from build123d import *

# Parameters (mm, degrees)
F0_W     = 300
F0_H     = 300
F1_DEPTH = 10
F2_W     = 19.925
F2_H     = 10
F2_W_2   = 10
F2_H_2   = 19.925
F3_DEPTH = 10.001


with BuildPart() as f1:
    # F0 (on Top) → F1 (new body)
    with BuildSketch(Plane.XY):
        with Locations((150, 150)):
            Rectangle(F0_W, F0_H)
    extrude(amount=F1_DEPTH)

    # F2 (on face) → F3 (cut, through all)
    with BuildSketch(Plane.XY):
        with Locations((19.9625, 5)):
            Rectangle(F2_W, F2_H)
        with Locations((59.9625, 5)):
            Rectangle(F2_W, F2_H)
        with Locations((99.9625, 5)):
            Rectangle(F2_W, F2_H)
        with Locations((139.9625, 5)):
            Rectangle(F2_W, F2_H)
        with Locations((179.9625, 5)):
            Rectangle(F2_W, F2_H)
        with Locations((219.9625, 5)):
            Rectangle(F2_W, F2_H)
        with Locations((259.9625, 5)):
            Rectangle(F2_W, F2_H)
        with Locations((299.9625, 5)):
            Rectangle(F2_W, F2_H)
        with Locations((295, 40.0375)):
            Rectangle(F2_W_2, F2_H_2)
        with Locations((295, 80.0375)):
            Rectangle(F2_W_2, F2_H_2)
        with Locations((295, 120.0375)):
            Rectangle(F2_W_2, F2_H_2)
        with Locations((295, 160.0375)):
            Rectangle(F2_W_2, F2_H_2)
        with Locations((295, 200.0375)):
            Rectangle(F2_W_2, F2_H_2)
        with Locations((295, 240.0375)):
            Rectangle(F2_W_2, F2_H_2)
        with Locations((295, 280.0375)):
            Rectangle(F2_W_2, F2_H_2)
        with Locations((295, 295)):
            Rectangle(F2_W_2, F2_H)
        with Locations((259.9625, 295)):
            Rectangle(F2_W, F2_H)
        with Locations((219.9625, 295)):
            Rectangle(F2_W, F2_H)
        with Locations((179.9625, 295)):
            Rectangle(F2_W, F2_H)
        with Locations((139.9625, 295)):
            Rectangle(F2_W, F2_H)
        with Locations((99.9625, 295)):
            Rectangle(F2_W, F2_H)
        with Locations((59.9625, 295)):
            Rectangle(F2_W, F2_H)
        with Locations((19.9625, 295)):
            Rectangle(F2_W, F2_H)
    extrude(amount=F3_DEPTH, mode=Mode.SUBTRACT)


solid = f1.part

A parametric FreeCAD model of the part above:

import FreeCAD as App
import Part
import Sketcher

V = App.Vector
Q = App.Units.Quantity


def add_polygon(sketch, points):
    """Adds a closed chain of lines whose ends are joined by coincident constraints."""
    first, n = sketch.GeometryCount, len(points)
    for a, b in zip(points, points[1:] + points[:1]):
        sketch.addGeometry(Part.LineSegment(App.Vector(*a, 0), App.Vector(*b, 0)), False)
    for i in range(n):
        sketch.addConstraint(Sketcher.Constraint("Coincident", first + i, 2, first + (i + 1) % n, 1))

doc = App.newDocument("Part")
body = doc.addObject("PartDesign::Body", "Body")

sketch1 = body.newObject("Sketcher::SketchObject", "Sketch")
sketch1.AttachmentSupport = (doc.getObject("XY_Plane"), [""])
sketch1.MapMode = "FlatFace"
add_polygon(sketch1, [(0, 300), (0, 0), (300, 0), (300, 300)])
sketch1.addConstraint([
    Sketcher.Constraint("Vertical", 0),
    Sketcher.Constraint("Horizontal", 1),
    Sketcher.Constraint("Vertical", 2),
    Sketcher.Constraint("Horizontal", 3),
    Sketcher.Constraint("Coincident", 0, 2, -1, 1),
    Sketcher.Constraint("Equal", 3, 0),
    Sketcher.Constraint("DistanceX", 1, 1, 1, 2, Q("300 mm")),
])
pad1 = body.newObject("PartDesign::Pad", "Pad")
pad1.Profile = sketch1
pad1.Length = 10

sketch2 = body.newObject("Sketcher::SketchObject", "Sketch001")
sketch2.AttachmentSupport = (doc.getObject("XY_Plane"), [""])
sketch2.MapMode = "FlatFace"
add_polygon(sketch2, [(10, 10), (10, 0), (30, 0), (30, 10)])
add_polygon(sketch2, [(50, 10), (50, 0), (70, 0), (70, 10)])
add_polygon(sketch2, [(90, 10), (90, 0), (110, 0), (110, 10)])
add_polygon(sketch2, [(130, 10), (130, 0), (150, 0), (150, 10)])
add_polygon(sketch2, [(170, 10), (170, 0), (190, 0), (190, 10)])
add_polygon(sketch2, [(210, 10), (210, 0), (230, 0), (230, 10)])
add_polygon(sketch2, [(250, 10), (250, 0), (270, 0), (270, 10)])
add_polygon(sketch2, [(290, 10), (290, 0), (310, 0), (310, 10)])
add_polygon(sketch2, [(290, 50), (290, 30), (300, 30), (300, 50)])
add_polygon(sketch2, [(290, 90), (290, 70), (300, 70), (300, 90)])
add_polygon(sketch2, [(290, 130), (290, 110), (300, 110), (300, 130)])
add_polygon(sketch2, [(290, 170), (290, 150), (300, 150), (300, 170)])
add_polygon(sketch2, [(290, 210), (290, 190), (300, 190), (300, 210)])
add_polygon(sketch2, [(290, 250), (290, 230), (300, 230), (300, 250)])
add_polygon(sketch2, [(290, 270), (300, 270), (300, 300), (290, 300)])
add_polygon(sketch2, [(250, 300), (250, 290), (270, 290), (270, 300)])
add_polygon(sketch2, [(210, 300), (210, 290), (230, 290), (230, 300)])
add_polygon(sketch2, [(170, 300), (170, 290), (190, 290), (190, 300)])
add_polygon(sketch2, [(130, 300), (130, 290), (150, 290), (150, 300)])
add_polygon(sketch2, [(90, 300), (90, 290), (110, 290), (110, 300)])
add_polygon(sketch2, [(50, 300), (50, 290), (70, 290), (70, 300)])
add_polygon(sketch2, [(10, 300), (10, 290), (30, 290), (30, 300)])
sketch2.addConstraint([
    Sketcher.Constraint("Vertical", 0),
    Sketcher.Constraint("Horizontal", 1),
    Sketcher.Constraint("Vertical", 2),
    Sketcher.Constraint("Horizontal", 3),
    Sketcher.Constraint("Vertical", 4),
    Sketcher.Constraint("Horizontal", 5),
    Sketcher.Constraint("Vertical", 6),
    Sketcher.Constraint("Horizontal", 7),
    Sketcher.Constraint("Vertical", 8),
    Sketcher.Constraint("Horizontal", 9),
    Sketcher.Constraint("Vertical", 10),
    Sketcher.Constraint("Horizontal", 11),
    Sketcher.Constraint("Vertical", 12),
    Sketcher.Constraint("Horizontal", 13),
    Sketcher.Constraint("Vertical", 14),
    Sketcher.Constraint("Horizontal", 15),
    Sketcher.Constraint("Vertical", 16),
    Sketcher.Constraint("Horizontal", 17),
    Sketcher.Constraint("Vertical", 18),
    Sketcher.Constraint("Horizontal", 19),
    Sketcher.Constraint("Vertical", 20),
    Sketcher.Constraint("Horizontal", 21),
    Sketcher.Constraint("Vertical", 22),
    Sketcher.Constraint("Horizontal", 23),
    Sketcher.Constraint("Vertical", 24),
    Sketcher.Constraint("Horizontal", 25),
    Sketcher.Constraint("Vertical", 26),
    Sketcher.Constraint("Horizontal", 27),
    Sketcher.Constraint("Vertical", 28),
    Sketcher.Constraint("Horizontal", 29),
    Sketcher.Constraint("Vertical", 30),
    Sketcher.Constraint("Horizontal", 31),
    Sketcher.Constraint("Vertical", 32),
    Sketcher.Constraint("Horizontal", 33),
    Sketcher.Constraint("Vertical", 34),
    Sketcher.Constraint("Horizontal", 35),
    Sketcher.Constraint("Vertical", 36),
    Sketcher.Constraint("Horizontal", 37),
    Sketcher.Constraint("Vertical", 38),
    Sketcher.Constraint("Horizontal", 39),
    Sketcher.Constraint("Vertical", 40),
    Sketcher.Constraint("Horizontal", 41),
    Sketcher.Constraint("Vertical", 42),
    Sketcher.Constraint("Horizontal", 43),
    Sketcher.Constraint("Vertical", 44),
    Sketcher.Constraint("Horizontal", 45),
    Sketcher.Constraint("Vertical", 46),
    Sketcher.Constraint("Horizontal", 47),
    Sketcher.Constraint("Vertical", 48),
    Sketcher.Constraint("Horizontal", 49),
    Sketcher.Constraint("Vertical", 50),
    Sketcher.Constraint("Horizontal", 51),
    Sketcher.Constraint("Vertical", 52),
    Sketcher.Constraint("Horizontal", 53),
    Sketcher.Constraint("Vertical", 54),
    Sketcher.Constraint("Horizontal", 55),
    Sketcher.Constraint("Horizontal", 56),
    Sketcher.Constraint("Vertical", 57),
    Sketcher.Constraint("Horizontal", 58),
    Sketcher.Constraint("Vertical", 59),
    Sketcher.Constraint("Vertical", 60),
    Sketcher.Constraint("Horizontal", 61),
    Sketcher.Constraint("Vertical", 62),
    Sketcher.Constraint("Horizontal", 63),
    Sketcher.Constraint("Vertical", 64),
    Sketcher.Constraint("Horizontal", 65),
    Sketcher.Constraint("Vertical", 66),
    Sketcher.Constraint("Horizontal", 67),
    Sketcher.Constraint("Vertical", 68),
    Sketcher.Constraint("Horizontal", 69),
    Sketcher.Constraint("Vertical", 70),
    Sketcher.Constraint("Horizontal", 71),
    Sketcher.Constraint("Vertical", 72),
    Sketcher.Constraint("Horizontal", 73),
    Sketcher.Constraint("Vertical", 74),
    Sketcher.Constraint("Horizontal", 75),
    Sketcher.Constraint("Vertical", 76),
    Sketcher.Constraint("Horizontal", 77),
    Sketcher.Constraint("Vertical", 78),
    Sketcher.Constraint("Horizontal", 79),
    Sketcher.Constraint("Vertical", 80),
    Sketcher.Constraint("Horizontal", 81),
    Sketcher.Constraint("Vertical", 82),
    Sketcher.Constraint("Horizontal", 83),
    Sketcher.Constraint("Vertical", 84),
    Sketcher.Constraint("Horizontal", 85),
    Sketcher.Constraint("Vertical", 86),
    Sketcher.Constraint("Horizontal", 87),
    Sketcher.Constraint("PointOnObject", 0, 2, -1),
    Sketcher.Constraint("PointOnObject", 4, 2, -1),
    Sketcher.Constraint("PointOnObject", 8, 2, -1),
    Sketcher.Constraint("PointOnObject", 12, 2, -1),
    Sketcher.Constraint("PointOnObject", 16, 2, -1),
    Sketcher.Constraint("PointOnObject", 20, 2, -1),
    Sketcher.Constraint("PointOnObject", 24, 2, -1),
    Sketcher.Constraint("PointOnObject", 28, 2, -1),
    Sketcher.Constraint("Horizontal", 3, 2, 6, 2),
    Sketcher.Constraint("Horizontal", 7, 2, 10, 2),
    Sketcher.Constraint("Horizontal", 11, 2, 14, 2),
    Sketcher.Constraint("Horizontal", 15, 2, 18, 2),
    Sketcher.Constraint("Horizontal", 19, 2, 22, 2),
    Sketcher.Constraint("Horizontal", 23, 2, 26, 2),
    Sketcher.Constraint("Horizontal", 27, 2, 30, 2),
    Sketcher.Constraint("Horizontal", 58, 2, 62, 2),
    Sketcher.Constraint("Horizontal", 61, 2, 64, 2),
    Sketcher.Constraint("Horizontal", 63, 2, 66, 2),
    Sketcher.Constraint("Horizontal", 65, 2, 68, 2),
    Sketcher.Constraint("Horizontal", 67, 2, 70, 2),
    Sketcher.Constraint("Horizontal", 69, 2, 72, 2),
    Sketcher.Constraint("Horizontal", 71, 2, 74, 2),
    Sketcher.Constraint("Horizontal", 73, 2, 76, 2),
    Sketcher.Constraint("Horizontal", 75, 2, 78, 2),
    Sketcher.Constraint("Horizontal", 77, 2, 80, 2),
    Sketcher.Constraint("Horizontal", 79, 2, 82, 2),
    Sketcher.Constraint("Horizontal", 81, 2, 84, 2),
    Sketcher.Constraint("Horizontal", 83, 2, 86, 2),
    Sketcher.Constraint("Vertical", 31, 2, 32, 2),
    Sketcher.Constraint("Vertical", 35, 2, 36, 2),
    Sketcher.Constraint("Vertical", 34, 2, 37, 2),
    Sketcher.Constraint("Vertical", 39, 2, 40, 2),
    Sketcher.Constraint("Vertical", 38, 2, 41, 2),
    Sketcher.Constraint("Vertical", 43, 2, 44, 2),
    Sketcher.Constraint("Vertical", 42, 2, 45, 2),
    Sketcher.Constraint("Vertical", 47, 2, 48, 2),
    Sketcher.Constraint("Vertical", 46, 2, 49, 2),
    Sketcher.Constraint("Vertical", 51, 2, 52, 2),
    Sketcher.Constraint("Vertical", 50, 2, 53, 2),
    Sketcher.Constraint("Vertical", 54, 2, 56, 2),
    Sketcher.Constraint("Vertical", 55, 2, 58, 2),
    Sketcher.Constraint("Vertical", 27, 2, 60, 2),
    Sketcher.Constraint("Vertical", 26, 2, 61, 2),
    Sketcher.Constraint("Vertical", 23, 2, 64, 2),
    Sketcher.Constraint("Vertical", 22, 2, 65, 2),
    Sketcher.Constraint("Vertical", 19, 2, 68, 2),
    Sketcher.Constraint("Vertical", 18, 2, 69, 2),
    Sketcher.Constraint("Vertical", 15, 2, 72, 2),
    Sketcher.Constraint("Vertical", 14, 2, 73, 2),
    Sketcher.Constraint("Vertical", 11, 2, 76, 2),
    Sketcher.Constraint("Vertical", 10, 2, 77, 2),
    Sketcher.Constraint("Vertical", 7, 2, 80, 2),
    Sketcher.Constraint("Vertical", 6, 2, 81, 2),
    Sketcher.Constraint("Vertical", 3, 2, 84, 2),
    Sketcher.Constraint("Vertical", 2, 2, 85, 2),
    Sketcher.Constraint("Equal", 3, 5),
    Sketcher.Constraint("Equal", 7, 9),
    Sketcher.Constraint("Equal", 11, 13),
    Sketcher.Constraint("Equal", 15, 17),
    Sketcher.Constraint("Equal", 19, 21),
    Sketcher.Constraint("Equal", 23, 25),
    Sketcher.Constraint("Equal", 27, 29),
    Sketcher.Constraint("Equal", 58, 0),
    Sketcher.Constraint("Equal", 87, 32),
    Sketcher.Constraint("Equal", 34, 36),
    Sketcher.Constraint("Equal", 38, 40),
    Sketcher.Constraint("Equal", 42, 44),
    Sketcher.Constraint("Equal", 46, 48),
    Sketcher.Constraint("Equal", 50, 52),
    Sketcher.Constraint("Equal", 30, 60),
    Sketcher.Constraint("DistanceX", 33, 1, 33, 2, Q("10 mm")),
    Sketcher.Constraint("DistanceX", -1, 1, 0, 2, Q("10 mm")),
    Sketcher.Constraint("DistanceX", -1, 1, 4, 2, Q("50 mm")),
    Sketcher.Constraint("DistanceX", -1, 1, 8, 2, Q("90 mm")),
    Sketcher.Constraint("DistanceX", -1, 1, 12, 2, Q("130 mm")),
    Sketcher.Constraint("DistanceX", -1, 1, 16, 2, Q("170 mm")),
    Sketcher.Constraint("DistanceX", -1, 1, 20, 2, Q("210 mm")),
    Sketcher.Constraint("DistanceX", -1, 1, 24, 2, Q("250 mm")),
    Sketcher.Constraint("DistanceX", -1, 1, 28, 2, Q("290 mm")),
    Sketcher.Constraint("DistanceY", -1, 1, 34, 2, Q("50 mm")),
    Sketcher.Constraint("DistanceY", -1, 1, 38, 2, Q("90 mm")),
    Sketcher.Constraint("DistanceY", -1, 1, 42, 2, Q("130 mm")),
    Sketcher.Constraint("DistanceY", -1, 1, 46, 2, Q("170 mm")),
    Sketcher.Constraint("DistanceY", -1, 1, 50, 2, Q("210 mm")),
    Sketcher.Constraint("DistanceY", -1, 1, 54, 2, Q("250 mm")),
    Sketcher.Constraint("DistanceY", -1, 1, 57, 2, Q("300 mm")),
    Sketcher.Constraint("DistanceX", 1, 1, 1, 2, Q("19.925 mm")),
    Sketcher.Constraint("DistanceY", 57, 1, 57, 2, Q("29.925 mm")),
])
pocket1 = body.newObject("PartDesign::Pocket", "Pocket")
pocket1.Profile = sketch2
pocket1.Type = "ThroughAll"
pocket1.Reversed = True

doc.recompute()
